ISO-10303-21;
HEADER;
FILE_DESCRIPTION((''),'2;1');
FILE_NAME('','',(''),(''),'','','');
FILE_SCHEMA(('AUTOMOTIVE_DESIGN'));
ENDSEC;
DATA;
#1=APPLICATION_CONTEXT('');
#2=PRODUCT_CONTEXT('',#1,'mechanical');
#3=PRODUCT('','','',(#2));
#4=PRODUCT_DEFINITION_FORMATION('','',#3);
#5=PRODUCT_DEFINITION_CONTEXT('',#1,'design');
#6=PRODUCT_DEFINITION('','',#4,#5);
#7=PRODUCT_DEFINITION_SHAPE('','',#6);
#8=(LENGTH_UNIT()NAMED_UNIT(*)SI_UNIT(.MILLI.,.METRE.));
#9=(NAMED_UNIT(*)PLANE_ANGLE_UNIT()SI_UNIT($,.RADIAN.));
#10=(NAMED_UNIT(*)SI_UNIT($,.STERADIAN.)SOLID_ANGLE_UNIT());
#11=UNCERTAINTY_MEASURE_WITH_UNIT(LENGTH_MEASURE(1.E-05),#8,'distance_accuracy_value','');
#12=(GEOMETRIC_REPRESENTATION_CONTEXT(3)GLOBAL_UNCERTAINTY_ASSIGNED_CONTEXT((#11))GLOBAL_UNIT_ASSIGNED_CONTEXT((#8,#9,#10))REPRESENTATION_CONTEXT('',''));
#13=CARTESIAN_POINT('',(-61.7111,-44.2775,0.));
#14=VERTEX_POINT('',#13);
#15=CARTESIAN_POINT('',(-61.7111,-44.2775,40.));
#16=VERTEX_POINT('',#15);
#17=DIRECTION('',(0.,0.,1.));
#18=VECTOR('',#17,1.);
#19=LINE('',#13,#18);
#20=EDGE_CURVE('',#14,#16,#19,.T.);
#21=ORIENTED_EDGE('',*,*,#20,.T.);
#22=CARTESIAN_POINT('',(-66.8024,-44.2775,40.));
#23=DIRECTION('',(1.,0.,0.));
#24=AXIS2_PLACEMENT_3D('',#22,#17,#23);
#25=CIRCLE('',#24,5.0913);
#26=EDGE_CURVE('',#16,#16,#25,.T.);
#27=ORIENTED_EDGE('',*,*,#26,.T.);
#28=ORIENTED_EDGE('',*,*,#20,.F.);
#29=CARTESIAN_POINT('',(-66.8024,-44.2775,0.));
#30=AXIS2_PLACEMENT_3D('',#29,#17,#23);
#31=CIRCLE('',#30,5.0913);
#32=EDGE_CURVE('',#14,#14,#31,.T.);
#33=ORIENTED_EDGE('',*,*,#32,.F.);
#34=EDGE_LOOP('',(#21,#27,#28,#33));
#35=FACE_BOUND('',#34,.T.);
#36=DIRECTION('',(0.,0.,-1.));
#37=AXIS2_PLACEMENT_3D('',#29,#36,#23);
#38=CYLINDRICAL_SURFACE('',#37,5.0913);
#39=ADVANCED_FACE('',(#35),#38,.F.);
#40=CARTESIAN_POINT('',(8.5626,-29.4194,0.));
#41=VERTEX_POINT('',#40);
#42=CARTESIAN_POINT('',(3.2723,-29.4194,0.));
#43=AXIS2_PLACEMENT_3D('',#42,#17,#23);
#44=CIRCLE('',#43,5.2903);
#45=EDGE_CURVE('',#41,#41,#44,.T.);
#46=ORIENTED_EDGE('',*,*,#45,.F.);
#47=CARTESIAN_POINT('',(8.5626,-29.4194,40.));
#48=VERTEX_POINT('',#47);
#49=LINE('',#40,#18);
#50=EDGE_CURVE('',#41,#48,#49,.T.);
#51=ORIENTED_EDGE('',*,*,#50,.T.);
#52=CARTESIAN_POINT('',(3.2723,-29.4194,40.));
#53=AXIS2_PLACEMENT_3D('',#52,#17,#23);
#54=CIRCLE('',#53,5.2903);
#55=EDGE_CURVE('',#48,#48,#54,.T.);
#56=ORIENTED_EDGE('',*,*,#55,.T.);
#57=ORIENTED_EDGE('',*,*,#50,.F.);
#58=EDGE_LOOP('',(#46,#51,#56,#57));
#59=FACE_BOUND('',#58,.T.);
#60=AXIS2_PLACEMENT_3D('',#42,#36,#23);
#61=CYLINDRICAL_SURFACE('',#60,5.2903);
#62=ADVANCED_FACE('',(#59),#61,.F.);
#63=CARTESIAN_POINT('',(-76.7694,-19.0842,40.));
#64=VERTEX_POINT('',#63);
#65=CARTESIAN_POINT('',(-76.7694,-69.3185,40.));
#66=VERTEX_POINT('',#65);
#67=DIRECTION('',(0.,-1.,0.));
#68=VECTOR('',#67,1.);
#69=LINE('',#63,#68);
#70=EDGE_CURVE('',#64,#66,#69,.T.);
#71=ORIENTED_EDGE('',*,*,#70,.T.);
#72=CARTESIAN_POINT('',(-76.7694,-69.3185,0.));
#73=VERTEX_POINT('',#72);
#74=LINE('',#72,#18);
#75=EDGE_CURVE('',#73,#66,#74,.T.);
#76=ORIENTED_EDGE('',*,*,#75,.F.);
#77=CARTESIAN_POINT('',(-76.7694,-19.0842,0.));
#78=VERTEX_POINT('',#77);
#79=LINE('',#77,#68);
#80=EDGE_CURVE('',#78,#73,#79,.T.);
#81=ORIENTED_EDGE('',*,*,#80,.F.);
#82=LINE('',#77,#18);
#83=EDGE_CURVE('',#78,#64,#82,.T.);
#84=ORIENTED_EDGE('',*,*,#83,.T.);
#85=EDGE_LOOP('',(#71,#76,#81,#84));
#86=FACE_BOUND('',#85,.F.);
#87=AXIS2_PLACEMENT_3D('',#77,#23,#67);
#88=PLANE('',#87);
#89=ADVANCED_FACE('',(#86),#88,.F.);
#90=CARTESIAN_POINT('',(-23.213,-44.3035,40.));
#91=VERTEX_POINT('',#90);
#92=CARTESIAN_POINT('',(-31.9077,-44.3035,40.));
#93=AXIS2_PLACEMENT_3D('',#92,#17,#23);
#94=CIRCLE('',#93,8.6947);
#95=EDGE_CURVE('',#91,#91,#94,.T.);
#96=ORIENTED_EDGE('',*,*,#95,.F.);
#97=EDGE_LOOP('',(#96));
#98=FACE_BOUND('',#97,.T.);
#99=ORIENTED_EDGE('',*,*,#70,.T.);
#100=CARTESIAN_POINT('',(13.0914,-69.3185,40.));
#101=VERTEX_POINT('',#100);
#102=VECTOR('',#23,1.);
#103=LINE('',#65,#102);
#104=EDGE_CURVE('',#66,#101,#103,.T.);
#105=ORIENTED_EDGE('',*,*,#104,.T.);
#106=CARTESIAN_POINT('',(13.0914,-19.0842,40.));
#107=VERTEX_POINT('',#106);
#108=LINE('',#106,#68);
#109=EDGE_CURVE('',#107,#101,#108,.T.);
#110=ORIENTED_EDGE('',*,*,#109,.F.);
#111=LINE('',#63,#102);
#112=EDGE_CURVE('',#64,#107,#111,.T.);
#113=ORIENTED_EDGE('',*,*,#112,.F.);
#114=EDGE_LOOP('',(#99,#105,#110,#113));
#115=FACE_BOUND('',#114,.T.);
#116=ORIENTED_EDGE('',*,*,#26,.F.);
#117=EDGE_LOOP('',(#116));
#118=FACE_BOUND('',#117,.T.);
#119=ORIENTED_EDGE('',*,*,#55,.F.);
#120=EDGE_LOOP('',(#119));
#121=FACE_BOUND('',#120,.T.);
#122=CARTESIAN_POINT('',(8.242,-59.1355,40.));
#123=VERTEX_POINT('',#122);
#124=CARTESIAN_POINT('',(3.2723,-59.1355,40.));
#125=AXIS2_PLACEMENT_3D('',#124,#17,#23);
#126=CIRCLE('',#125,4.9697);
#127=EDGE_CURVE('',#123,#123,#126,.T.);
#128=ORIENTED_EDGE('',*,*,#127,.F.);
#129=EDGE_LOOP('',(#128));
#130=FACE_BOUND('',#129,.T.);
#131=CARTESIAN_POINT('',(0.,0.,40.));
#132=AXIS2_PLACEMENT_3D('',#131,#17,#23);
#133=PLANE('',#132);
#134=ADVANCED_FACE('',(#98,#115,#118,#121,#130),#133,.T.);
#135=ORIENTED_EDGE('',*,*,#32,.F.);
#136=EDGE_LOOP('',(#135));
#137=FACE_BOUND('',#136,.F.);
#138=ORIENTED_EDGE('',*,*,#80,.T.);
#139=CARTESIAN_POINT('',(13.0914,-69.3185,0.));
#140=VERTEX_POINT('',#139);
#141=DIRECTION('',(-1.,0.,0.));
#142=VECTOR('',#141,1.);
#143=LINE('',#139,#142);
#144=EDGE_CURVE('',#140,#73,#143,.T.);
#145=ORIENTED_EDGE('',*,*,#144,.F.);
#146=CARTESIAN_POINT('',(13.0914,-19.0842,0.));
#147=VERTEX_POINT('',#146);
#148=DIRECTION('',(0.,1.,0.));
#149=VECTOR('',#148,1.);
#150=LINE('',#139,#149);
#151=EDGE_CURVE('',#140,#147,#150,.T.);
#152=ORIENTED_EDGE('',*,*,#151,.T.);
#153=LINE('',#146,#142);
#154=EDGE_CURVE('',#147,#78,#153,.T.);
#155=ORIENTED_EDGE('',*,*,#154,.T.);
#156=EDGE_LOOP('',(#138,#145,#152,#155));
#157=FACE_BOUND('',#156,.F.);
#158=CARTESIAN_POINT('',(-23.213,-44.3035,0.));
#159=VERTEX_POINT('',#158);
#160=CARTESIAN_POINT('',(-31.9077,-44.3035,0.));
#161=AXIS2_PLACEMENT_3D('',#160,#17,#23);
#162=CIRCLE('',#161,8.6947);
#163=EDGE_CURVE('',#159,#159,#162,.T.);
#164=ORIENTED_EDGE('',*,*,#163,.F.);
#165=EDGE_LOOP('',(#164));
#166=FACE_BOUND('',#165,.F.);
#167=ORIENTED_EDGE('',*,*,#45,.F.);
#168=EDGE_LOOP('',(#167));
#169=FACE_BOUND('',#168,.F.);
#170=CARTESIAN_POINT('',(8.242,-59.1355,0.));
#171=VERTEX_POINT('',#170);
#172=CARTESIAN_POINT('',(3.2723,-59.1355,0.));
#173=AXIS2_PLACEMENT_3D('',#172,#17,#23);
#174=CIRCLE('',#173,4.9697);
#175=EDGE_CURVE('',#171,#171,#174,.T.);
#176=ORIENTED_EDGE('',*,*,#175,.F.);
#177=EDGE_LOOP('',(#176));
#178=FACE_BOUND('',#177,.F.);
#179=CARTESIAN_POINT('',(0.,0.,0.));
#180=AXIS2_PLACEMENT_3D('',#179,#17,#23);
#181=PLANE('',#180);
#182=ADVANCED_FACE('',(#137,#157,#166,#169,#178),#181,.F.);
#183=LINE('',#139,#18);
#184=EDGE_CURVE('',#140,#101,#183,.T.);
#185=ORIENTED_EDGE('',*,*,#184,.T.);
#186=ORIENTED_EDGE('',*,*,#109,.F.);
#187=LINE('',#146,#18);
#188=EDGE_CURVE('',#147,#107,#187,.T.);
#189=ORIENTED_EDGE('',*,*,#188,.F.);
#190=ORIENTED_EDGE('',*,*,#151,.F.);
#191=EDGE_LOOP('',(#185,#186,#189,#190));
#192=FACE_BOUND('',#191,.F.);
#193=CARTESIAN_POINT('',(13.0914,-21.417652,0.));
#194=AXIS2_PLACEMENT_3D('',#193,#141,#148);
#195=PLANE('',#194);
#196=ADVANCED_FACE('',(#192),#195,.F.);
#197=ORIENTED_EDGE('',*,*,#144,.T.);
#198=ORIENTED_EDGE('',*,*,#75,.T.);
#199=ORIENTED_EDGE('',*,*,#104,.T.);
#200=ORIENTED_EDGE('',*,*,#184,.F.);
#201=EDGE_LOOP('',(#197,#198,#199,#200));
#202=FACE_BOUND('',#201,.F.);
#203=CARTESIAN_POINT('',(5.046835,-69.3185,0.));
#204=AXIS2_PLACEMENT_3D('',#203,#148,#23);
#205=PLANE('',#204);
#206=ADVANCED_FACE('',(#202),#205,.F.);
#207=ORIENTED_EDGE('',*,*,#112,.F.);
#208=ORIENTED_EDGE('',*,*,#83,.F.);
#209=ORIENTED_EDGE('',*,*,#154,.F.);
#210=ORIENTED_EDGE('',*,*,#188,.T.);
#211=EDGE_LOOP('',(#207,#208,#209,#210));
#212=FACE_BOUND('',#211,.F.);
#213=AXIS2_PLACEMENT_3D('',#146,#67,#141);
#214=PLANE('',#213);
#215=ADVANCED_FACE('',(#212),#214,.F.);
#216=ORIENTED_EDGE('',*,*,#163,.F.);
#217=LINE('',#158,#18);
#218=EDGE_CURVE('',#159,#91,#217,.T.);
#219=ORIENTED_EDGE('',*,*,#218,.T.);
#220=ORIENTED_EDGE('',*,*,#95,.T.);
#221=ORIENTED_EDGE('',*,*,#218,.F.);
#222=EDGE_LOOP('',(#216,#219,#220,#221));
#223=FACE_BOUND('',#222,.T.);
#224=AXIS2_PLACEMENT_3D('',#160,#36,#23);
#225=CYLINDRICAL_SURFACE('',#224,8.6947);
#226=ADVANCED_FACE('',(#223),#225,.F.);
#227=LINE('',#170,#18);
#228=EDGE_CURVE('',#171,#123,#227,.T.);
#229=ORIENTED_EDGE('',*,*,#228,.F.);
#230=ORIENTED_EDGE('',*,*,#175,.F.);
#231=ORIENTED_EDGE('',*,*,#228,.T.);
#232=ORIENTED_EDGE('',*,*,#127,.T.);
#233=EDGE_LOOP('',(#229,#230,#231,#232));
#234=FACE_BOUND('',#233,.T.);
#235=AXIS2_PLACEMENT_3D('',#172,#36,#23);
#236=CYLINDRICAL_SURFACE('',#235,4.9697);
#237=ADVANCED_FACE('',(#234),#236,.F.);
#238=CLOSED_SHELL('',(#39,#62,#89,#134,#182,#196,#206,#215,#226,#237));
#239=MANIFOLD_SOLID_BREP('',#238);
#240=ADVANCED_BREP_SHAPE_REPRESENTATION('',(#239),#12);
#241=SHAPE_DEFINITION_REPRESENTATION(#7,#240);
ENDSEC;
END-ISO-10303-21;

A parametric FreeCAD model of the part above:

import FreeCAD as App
import Part
import Sketcher

doc = App.newDocument("Part")
body = doc.addObject("PartDesign::Body", "Body")

# Sketch on XY plane
sketch1 = doc.addObject("Sketcher::SketchObject", "Sketch")
body.addObject(sketch1)
sketch1.AttachmentSupport = (doc.XY_Plane, [""])
sketch1.MapMode = "FlatFace"
sketch1.addGeometry([
    Part.LineSegment(App.Vector(13.1, -19.1, 0), App.Vector(-76.8, -19.1, 0)),  # 0
    Part.LineSegment(App.Vector(-76.8, -19.1, 0), App.Vector(-76.8, -69.3, 0)),  # 1
    Part.LineSegment(App.Vector(-76.8, -69.3, 0), App.Vector(13.1, -69.3, 0)),  # 2
    Part.LineSegment(App.Vector(13.1, -69.3, 0), App.Vector(13.1, -19.1, 0)),  # 3
    Part.Circle(App.Vector(3.3, -29.4, 0), App.Vector(0, 0, 1), 5.3),  # 4
    Part.Circle(App.Vector(-66.8, -44.3, 0), App.Vector(0, 0, 1), 5.1),  # 5
    Part.Circle(App.Vector(3.3, -59.1, 0), App.Vector(0, 0, 1), 5),  # 6
    Part.Circle(App.Vector(-31.9, -44.3, 0), App.Vector(0, 0, 1), 8.7),  # 7
], False)
sketch1.addConstraint([
    Sketcher.Constraint("Coincident", 0, 2, 1, 1),
    Sketcher.Constraint("Coincident", 1, 2, 2, 1),
    Sketcher.Constraint("Coincident", 2, 2, 3, 1),
    Sketcher.Constraint("Coincident", 3, 2, 0, 1),
    Sketcher.Constraint("Horizontal", 0),
    Sketcher.Constraint("Vertical", 1),
    Sketcher.Constraint("Horizontal", 2),
    Sketcher.Constraint("Vertical", 3),
    Sketcher.Constraint("Vertical", 4, 3, 6, 3),
    Sketcher.Constraint("Diameter", 4, 10.5806),
    Sketcher.Constraint("Diameter", 5, 10.1826),
    Sketcher.Constraint("Diameter", 6, 9.9394),
    Sketcher.Constraint("Diameter", 7, 17.3894),
    Sketcher.Constraint("DistanceX", 7, 3, 6, 3, 35.18),
    Sketcher.Constraint("DistanceX", 0, 2, 0, 1, 89.8608),
    Sketcher.Constraint("DistanceY", 1, 2, 1, 1, 50.2343),
    Sketcher.Constraint("DistanceY", 5, 3, 4, 3, 14.858),
    Sketcher.Constraint("DistanceY", 6, 3, 4, 3, 29.716),
    Sketcher.Constraint("DistanceY", 7, 3, 5, 3, 0.026),
    Sketcher.Constraint("DistanceX", 0, 2, 5, 3, 9.967),
    Sketcher.Constraint("DistanceY", 1, 2, 5, 3, 25.041),
    Sketcher.Constraint("DistanceX", 6, 3, 2, 2, 9.819),
    Sketcher.Constraint("DistanceX", -1, 1, 4, 3, 3.2723),
    Sketcher.Constraint("DistanceY", 4, 3, -1, 1, 29.4194),
])
pad1 = doc.addObject("PartDesign::Pad", "Pad")
body.addObject(pad1)
pad1.Profile = sketch1
pad1.Length = 40

doc.recompute()
